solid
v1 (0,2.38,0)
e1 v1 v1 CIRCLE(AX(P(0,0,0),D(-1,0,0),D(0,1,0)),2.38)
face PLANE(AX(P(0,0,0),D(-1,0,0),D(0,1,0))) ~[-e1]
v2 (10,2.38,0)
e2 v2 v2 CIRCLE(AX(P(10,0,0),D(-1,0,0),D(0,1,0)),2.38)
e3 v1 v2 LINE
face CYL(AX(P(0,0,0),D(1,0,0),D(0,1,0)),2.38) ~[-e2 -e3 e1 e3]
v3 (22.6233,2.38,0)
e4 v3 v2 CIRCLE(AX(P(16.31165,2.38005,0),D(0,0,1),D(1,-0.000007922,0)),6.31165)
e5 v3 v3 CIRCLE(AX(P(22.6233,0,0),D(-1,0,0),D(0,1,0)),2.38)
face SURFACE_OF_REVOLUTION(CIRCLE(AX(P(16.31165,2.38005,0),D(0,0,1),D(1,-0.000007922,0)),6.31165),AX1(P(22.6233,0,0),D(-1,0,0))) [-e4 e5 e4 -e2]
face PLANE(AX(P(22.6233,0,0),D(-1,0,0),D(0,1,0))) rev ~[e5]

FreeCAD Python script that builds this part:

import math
import FreeCAD as App
import Part
import Sketcher
Q = App.Units.Quantity

doc = App.newDocument("Part")
body = doc.addObject("PartDesign::Body", "Body")

sketch1 = body.newObject("Sketcher::SketchObject", "Sketch")
sketch1.AttachmentSupport = (doc.getObject("XY_Plane"), [""])
sketch1.MapMode = "FlatFace"
sketch1.addGeometry([
    Part.LineSegment(App.Vector(10, 2.4, 0), App.Vector(0, 2.4, 0)),
    Part.LineSegment(App.Vector(0, 2.4, 0), App.Vector(0, 0, 0)),
    Part.LineSegment(App.Vector(0, 0, 0), App.Vector(22.6, 0, 0)),
    Part.LineSegment(App.Vector(22.6, 0, 0), App.Vector(22.6, 2.4, 0)),
    Part.ArcOfCircle(Part.Circle(App.Vector(16.3, 2.4, 0), App.Vector(0, 0, 1), 6.3), math.radians(0), math.radians(180)),
], False)
sketch1.addConstraint([
    Sketcher.Constraint("Coincident", 0, 2, 1, 1),
    Sketcher.Constraint("Coincident", 1, 2, 2, 1),
    Sketcher.Constraint("Coincident", 2, 2, 3, 1),
    Sketcher.Constraint("Tangent", 3, 2, 4, 1),
    Sketcher.Constraint("Coincident", 4, 2, 0, 1),
    Sketcher.Constraint("Horizontal", 0),
    Sketcher.Constraint("Vertical", 1),
    Sketcher.Constraint("Horizontal", 2),
    Sketcher.Constraint("Vertical", 3),
    Sketcher.Constraint("Coincident", 1, 2, -1, 1),
    Sketcher.Constraint("Horizontal", 4, 3, 0, 2),
    Sketcher.Constraint("DistanceX", 0, 2, 0, 1, Q("10 mm")),
    Sketcher.Constraint("DistanceY", 1, 2, 1, 1, Q("2.38 mm")),
    Sketcher.Constraint("Radius", 4, Q("6.3117 mm")),
])
revolution = body.newObject("PartDesign::Revolution", "Revolution")
revolution.Profile = sketch1
revolution.ReferenceAxis = (sketch1, ["H_Axis"])
revolution.Angle = 360

doc.recompute()
